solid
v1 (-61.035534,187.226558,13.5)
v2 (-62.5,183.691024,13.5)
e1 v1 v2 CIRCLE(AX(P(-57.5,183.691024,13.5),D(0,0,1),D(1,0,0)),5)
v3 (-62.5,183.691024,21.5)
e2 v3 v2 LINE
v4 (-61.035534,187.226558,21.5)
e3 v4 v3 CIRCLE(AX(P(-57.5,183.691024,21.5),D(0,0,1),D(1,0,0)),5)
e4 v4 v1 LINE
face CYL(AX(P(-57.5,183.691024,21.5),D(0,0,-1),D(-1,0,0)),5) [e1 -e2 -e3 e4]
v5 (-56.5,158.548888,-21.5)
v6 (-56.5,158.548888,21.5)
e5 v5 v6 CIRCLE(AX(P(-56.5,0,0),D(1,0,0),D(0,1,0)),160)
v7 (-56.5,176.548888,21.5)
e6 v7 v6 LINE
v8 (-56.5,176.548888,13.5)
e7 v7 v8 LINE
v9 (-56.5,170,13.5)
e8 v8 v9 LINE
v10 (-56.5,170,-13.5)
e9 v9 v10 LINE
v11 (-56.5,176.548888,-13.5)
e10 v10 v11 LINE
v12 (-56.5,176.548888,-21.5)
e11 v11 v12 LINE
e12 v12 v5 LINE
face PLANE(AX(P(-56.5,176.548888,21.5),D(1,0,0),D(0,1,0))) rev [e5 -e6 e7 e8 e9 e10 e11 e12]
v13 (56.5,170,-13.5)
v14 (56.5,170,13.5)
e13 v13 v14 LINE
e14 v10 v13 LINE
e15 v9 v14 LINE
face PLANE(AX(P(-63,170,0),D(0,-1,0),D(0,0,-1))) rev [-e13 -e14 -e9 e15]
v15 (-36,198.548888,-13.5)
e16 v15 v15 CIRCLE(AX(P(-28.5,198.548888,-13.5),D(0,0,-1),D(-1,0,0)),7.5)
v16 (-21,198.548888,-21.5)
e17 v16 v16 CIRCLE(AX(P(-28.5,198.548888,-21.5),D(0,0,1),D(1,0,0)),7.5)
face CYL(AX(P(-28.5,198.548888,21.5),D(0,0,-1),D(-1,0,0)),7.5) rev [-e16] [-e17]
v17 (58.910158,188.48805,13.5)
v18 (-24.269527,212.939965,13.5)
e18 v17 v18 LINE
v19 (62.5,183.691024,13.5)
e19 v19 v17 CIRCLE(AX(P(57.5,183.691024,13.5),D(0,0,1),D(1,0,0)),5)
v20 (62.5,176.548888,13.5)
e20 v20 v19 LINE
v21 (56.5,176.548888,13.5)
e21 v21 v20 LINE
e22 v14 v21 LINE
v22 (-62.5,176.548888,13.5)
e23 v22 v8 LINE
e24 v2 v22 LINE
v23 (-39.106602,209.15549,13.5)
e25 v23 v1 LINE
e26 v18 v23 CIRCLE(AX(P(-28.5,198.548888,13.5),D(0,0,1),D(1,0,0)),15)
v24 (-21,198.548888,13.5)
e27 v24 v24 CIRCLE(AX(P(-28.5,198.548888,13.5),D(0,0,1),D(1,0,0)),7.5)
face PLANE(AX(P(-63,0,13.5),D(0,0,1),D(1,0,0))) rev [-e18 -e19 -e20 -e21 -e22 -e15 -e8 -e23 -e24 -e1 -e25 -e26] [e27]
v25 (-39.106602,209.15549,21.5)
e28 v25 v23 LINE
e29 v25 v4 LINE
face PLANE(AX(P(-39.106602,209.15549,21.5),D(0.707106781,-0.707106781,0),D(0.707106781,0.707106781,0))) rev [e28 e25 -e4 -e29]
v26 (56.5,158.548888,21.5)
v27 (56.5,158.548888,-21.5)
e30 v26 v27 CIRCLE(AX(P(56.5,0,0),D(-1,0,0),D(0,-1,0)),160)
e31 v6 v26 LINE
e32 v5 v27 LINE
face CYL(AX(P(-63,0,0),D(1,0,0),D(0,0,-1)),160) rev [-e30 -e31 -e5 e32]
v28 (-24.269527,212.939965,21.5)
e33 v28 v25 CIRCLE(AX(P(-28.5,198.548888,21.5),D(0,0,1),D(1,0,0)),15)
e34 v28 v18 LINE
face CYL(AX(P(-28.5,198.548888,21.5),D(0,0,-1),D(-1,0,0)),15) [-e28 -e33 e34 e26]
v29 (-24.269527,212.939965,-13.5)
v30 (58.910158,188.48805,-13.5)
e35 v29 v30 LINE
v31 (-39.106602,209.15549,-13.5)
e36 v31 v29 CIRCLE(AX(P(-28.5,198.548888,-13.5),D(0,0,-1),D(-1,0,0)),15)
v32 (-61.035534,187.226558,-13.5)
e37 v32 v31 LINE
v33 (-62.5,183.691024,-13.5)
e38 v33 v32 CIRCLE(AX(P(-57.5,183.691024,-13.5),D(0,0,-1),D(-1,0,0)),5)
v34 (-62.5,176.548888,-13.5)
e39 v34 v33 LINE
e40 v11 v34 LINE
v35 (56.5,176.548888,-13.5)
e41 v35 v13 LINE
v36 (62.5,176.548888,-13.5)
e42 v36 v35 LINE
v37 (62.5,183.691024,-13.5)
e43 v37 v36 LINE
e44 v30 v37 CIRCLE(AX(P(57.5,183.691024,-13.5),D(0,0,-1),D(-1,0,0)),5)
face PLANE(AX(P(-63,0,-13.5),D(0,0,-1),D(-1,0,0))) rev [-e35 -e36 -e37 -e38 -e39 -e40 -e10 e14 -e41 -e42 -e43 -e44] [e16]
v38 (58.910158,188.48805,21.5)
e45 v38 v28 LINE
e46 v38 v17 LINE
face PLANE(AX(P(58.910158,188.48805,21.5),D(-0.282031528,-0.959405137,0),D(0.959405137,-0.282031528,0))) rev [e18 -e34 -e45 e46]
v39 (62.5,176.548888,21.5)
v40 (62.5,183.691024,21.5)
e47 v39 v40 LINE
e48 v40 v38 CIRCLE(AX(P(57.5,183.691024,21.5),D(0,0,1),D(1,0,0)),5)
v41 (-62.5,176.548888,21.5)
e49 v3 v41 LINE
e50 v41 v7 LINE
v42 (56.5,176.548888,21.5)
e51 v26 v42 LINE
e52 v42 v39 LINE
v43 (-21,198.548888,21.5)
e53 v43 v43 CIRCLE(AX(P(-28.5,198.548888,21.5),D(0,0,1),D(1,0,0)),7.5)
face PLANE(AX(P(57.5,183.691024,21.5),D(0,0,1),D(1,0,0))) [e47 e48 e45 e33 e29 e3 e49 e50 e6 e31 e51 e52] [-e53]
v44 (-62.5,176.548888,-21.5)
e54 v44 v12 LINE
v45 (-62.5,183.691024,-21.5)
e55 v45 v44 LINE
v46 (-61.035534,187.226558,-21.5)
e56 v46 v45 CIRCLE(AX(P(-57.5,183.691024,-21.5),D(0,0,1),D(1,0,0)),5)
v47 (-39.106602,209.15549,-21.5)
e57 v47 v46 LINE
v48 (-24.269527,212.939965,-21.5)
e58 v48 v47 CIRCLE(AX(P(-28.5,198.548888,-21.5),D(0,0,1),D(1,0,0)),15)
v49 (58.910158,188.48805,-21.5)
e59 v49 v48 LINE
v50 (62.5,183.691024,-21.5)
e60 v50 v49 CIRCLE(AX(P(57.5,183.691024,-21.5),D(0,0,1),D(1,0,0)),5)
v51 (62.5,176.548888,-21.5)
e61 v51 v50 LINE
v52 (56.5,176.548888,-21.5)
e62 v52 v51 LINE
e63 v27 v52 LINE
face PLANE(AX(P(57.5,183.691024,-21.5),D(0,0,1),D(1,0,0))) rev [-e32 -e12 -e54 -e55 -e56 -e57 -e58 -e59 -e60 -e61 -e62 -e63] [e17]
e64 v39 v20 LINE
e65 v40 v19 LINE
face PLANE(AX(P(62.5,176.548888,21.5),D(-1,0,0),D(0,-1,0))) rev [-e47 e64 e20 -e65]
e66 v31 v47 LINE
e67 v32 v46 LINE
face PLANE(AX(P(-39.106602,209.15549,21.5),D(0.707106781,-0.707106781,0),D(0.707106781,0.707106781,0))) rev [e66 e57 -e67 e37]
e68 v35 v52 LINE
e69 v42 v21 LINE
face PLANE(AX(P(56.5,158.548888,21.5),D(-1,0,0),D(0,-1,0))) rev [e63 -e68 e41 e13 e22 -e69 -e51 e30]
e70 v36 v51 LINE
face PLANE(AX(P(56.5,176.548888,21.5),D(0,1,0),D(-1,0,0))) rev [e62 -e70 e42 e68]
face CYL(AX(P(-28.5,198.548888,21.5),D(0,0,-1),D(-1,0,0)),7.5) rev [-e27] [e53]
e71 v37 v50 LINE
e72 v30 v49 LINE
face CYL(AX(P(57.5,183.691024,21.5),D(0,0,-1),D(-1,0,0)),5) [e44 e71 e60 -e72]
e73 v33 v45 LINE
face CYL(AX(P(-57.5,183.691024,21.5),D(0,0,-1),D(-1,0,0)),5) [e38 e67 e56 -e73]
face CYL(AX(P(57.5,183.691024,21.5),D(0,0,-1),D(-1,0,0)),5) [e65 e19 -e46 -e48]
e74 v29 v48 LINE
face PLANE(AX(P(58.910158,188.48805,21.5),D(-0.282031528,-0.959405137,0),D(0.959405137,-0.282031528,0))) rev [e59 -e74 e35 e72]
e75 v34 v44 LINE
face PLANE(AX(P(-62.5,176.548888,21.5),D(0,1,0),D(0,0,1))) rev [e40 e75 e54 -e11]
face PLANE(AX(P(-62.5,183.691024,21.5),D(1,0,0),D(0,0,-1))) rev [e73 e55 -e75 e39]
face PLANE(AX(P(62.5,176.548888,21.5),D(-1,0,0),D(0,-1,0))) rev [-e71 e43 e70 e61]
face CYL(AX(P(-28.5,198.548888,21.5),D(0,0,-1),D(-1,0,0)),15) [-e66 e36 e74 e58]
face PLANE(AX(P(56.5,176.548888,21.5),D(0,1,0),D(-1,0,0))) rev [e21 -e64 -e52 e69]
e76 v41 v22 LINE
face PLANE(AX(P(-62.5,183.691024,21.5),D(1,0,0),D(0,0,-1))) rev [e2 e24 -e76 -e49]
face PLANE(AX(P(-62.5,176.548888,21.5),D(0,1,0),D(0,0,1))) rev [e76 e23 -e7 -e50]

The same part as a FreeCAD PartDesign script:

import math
import FreeCAD as App
import Part
import Sketcher
Q = App.Units.Quantity

doc = App.newDocument("Part")
body = doc.addObject("PartDesign::Body", "Body")

sketch1 = doc.addObject("Sketcher::SketchObject", "Sketch")
body.addObject(sketch1)
sketch1.AttachmentSupport = (doc.XY_Plane, [""])
sketch1.MapMode = "FlatFace"
sketch1.addGeometry(Part.LineSegment(App.Vector(-56.5, 158.5, 0), App.Vector(56.5, 158.5, 0)), False)
sketch1.addGeometry(Part.LineSegment(App.Vector(56.5, 158.5, 0), App.Vector(56.5, 176.5, 0)), False)
sketch1.addGeometry(Part.LineSegment(App.Vector(56.5, 176.5, 0), App.Vector(62.5, 176.5, 0)), False)
sketch1.addGeometry(Part.LineSegment(App.Vector(62.5, 176.5, 0), App.Vector(62.5, 183.7, 0)), False)
sketch1.addGeometry(Part.ArcOfCircle(Part.Circle(App.Vector(57.5, 183.7, 0), App.Vector(0, 0, 1), 5), math.radians(0), math.radians(74)), False)
sketch1.addGeometry(Part.LineSegment(App.Vector(58.9, 188.5, 0), App.Vector(-24.3, 212.9, 0)), False)
sketch1.addGeometry(Part.ArcOfCircle(Part.Circle(App.Vector(-28.5, 198.5, 0), App.Vector(0, 0, 1), 15), math.radians(74), math.radians(135)), False)
sketch1.addGeometry(Part.LineSegment(App.Vector(-39.1, 209.2, 0), App.Vector(-61, 187.2, 0)), False)
sketch1.addGeometry(Part.ArcOfCircle(Part.Circle(App.Vector(-57.5, 183.7, 0), App.Vector(0, 0, 1), 5), math.radians(135), math.radians(180)), False)
sketch1.addGeometry(Part.LineSegment(App.Vector(-62.5, 183.7, 0), App.Vector(-62.5, 176.5, 0)), False)
sketch1.addGeometry(Part.LineSegment(App.Vector(-62.5, 176.5, 0), App.Vector(-56.5, 176.5, 0)), False)
sketch1.addGeometry(Part.LineSegment(App.Vector(-56.5, 176.5, 0), App.Vector(-56.5, 158.5, 0)), False)
sketch1.addGeometry(Part.Circle(App.Vector(-28.5, 198.5, 0), App.Vector(0, 0, 1), 7.5), False)
sketch1.addConstraint(Sketcher.Constraint("Coincident", 0, 2, 1, 1))
sketch1.addConstraint(Sketcher.Constraint("Coincident", 1, 2, 2, 1))
sketch1.addConstraint(Sketcher.Constraint("Coincident", 2, 2, 3, 1))
sketch1.addConstraint(Sketcher.Constraint("Tangent", 3, 2, 4, 1))
sketch1.addConstraint(Sketcher.Constraint("Tangent", 4, 2, 5, 1))
sketch1.addConstraint(Sketcher.Constraint("Tangent", 5, 2, 6, 1))
sketch1.addConstraint(Sketcher.Constraint("Tangent", 6, 2, 7, 1))
sketch1.addConstraint(Sketcher.Constraint("Tangent", 7, 2, 8, 1))
sketch1.addConstraint(Sketcher.Constraint("Tangent", 8, 2, 9, 1))
sketch1.addConstraint(Sketcher.Constraint("Coincident", 9, 2, 10, 1))
sketch1.addConstraint(Sketcher.Constraint("Coincident", 10, 2, 11, 1))
sketch1.addConstraint(Sketcher.Constraint("Coincident", 11, 2, 0, 1))
sketch1.addConstraint(Sketcher.Constraint("Horizontal", 0))
sketch1.addConstraint(Sketcher.Constraint("Vertical", 1))
sketch1.addConstraint(Sketcher.Constraint("Horizontal", 2))
sketch1.addConstraint(Sketcher.Constraint("Vertical", 3))
sketch1.addConstraint(Sketcher.Constraint("Vertical", 9))
sketch1.addConstraint(Sketcher.Constraint("Horizontal", 10))
sketch1.addConstraint(Sketcher.Constraint("Vertical", 11))
sketch1.addConstraint(Sketcher.Constraint("Coincident", 12, 3, 6, 3))
sketch1.addConstraint(Sketcher.Constraint("Equal", 4, 8))
sketch1.addConstraint(Sketcher.Constraint("Symmetric", 4, 3, 8, 3, -2))
sketch1.addConstraint(Sketcher.Constraint("Symmetric", 1, 2, 10, 2, -2))
sketch1.addConstraint(Sketcher.Constraint("Diameter", 12, 15.0))
sketch1.addConstraint(Sketcher.Constraint("Radius", 4, 5.0))
sketch1.addConstraint(Sketcher.Constraint("Radius", 6, 15.0))
sketch1.addConstraint(Sketcher.Constraint("DistanceX", 0, 1, 0, 2, 113.0))
sketch1.addConstraint(Sketcher.Constraint("DistanceX", 2, 1, 2, 2, 6.0))
sketch1.addConstraint(Sketcher.Constraint("DistanceY", 1, 1, 1, 2, 18.0))
sketch1.addConstraint(Sketcher.Constraint("Angle", 7, Q("-135 deg")))
sketch1.addConstraint(Sketcher.Constraint("DistanceX", 6, 3, 4, 3, 86.0))
sketch1.addConstraint(Sketcher.Constraint("DistanceY", 0, 2, 6, 3, 40.0))
sketch1.addConstraint(Sketcher.Constraint("DistanceY", -1, 1, 6, 3, 198.548888))
pad1 = doc.addObject("PartDesign::Pad", "Pad")
body.addObject(pad1)
pad1.Profile = sketch1
pad1.Length = 43
pad1.Midplane = True

sketch2 = doc.addObject("Sketcher::SketchObject", "Sketch001")
body.addObject(sketch2)
sketch2.AttachmentSupport = (doc.YZ_Plane, [""])
sketch2.MapMode = "FlatFace"
sketch2.addGeometry(Part.ArcOfCircle(Part.Circle(App.Vector(0, 0, 0), App.Vector(0, 0, 1), 160), math.radians(-7.72), math.radians(0)), False)
sketch2.addGeometry(Part.ArcOfCircle(Part.Circle(App.Vector(0, 0, 0), App.Vector(0, 0, 1), 160), math.radians(0), math.radians(7.72)), False)
sketch2.addGeometry(Part.ArcOfCircle(Part.Circle(App.Vector(0, 0, 0), App.Vector(0, 0, 1), 160), math.radians(8), math.radians(270)), False)
sketch2.addGeometry(Part.ArcOfCircle(Part.Circle(App.Vector(0, 0, 0), App.Vector(0, 0, 1), 160), math.radians(-90), math.radians(-8)), False)
sketch2.addGeometry(Part.LineSegment(App.Vector(170, -14, 0), App.Vector(260, -14, 0)), False)
sketch2.addGeometry(Part.LineSegment(App.Vector(260, -14, 0), App.Vector(260, 14, 0)), False)
sketch2.addGeometry(Part.LineSegment(App.Vector(260, 14, 0), App.Vector(170, 14, 0)), False)
sketch2.addGeometry(Part.LineSegment(App.Vector(170, 14, 0), App.Vector(170, -14, 0)), False)
sketch2.addConstraint(Sketcher.Constraint("Tangent", 0, 2, 1, 1))
sketch2.addConstraint(Sketcher.Constraint("Tangent", 1, 2, 2, 1))
sketch2.addConstraint(Sketcher.Constraint("Tangent", 2, 2, 3, 1))
sketch2.addConstraint(Sketcher.Constraint("Coincident", 3, 2, 0, 1))
sketch2.addConstraint(Sketcher.Constraint("Coincident", 4, 2, 5, 1))
sketch2.addConstraint(Sketcher.Constraint("Coincident", 5, 2, 6, 1))
sketch2.addConstraint(Sketcher.Constraint("Coincident", 6, 2, 7, 1))
sketch2.addConstraint(Sketcher.Constraint("Coincident", 7, 2, 4, 1))
sketch2.addConstraint(Sketcher.Constraint("Horizontal", 4))
sketch2.addConstraint(Sketcher.Constraint("Vertical", 5))
sketch2.addConstraint(Sketcher.Constraint("Horizontal", 6))
sketch2.addConstraint(Sketcher.Constraint("Vertical", 7))
sketch2.addConstraint(Sketcher.Constraint("Coincident", 0, 3, -1, 1))
sketch2.addConstraint(Sketcher.Constraint("Coincident", 2, 3, -1, 1))
sketch2.addConstraint(Sketcher.Constraint("PointOnObject", 0, 2, -1))
sketch2.addConstraint(Sketcher.Constraint("PointOnObject", 2, 2, -2))
sketch2.addConstraint(Sketcher.Constraint("Vertical", 1, 2, 3, 2))
sketch2.addConstraint(Sketcher.Constraint("Radius", 0, 160.0))
sketch2.addConstraint(Sketcher.Constraint("DistanceX", 4, 1, 4, 2, 90.0))
sketch2.addConstraint(Sketcher.Constraint("DistanceY", 5, 1, 5, 2, 27.0))
sketch2.addConstraint(Sketcher.Constraint("DistanceX", -1, 1, 4, 2, 260.0))
sketch2.addConstraint(Sketcher.Constraint("DistanceY", 3, 2, 1, 2, 43.0))
sketch2.addConstraint(Sketcher.Constraint("DistanceY", 3, 2, 4, 2, 8.0))
pocket1 = doc.addObject("PartDesign::Pocket", "Pocket")
body.addObject(pocket1)
pocket1.Profile = sketch2
pocket1.Length = 126
pocket1.Midplane = True

doc.recompute()
